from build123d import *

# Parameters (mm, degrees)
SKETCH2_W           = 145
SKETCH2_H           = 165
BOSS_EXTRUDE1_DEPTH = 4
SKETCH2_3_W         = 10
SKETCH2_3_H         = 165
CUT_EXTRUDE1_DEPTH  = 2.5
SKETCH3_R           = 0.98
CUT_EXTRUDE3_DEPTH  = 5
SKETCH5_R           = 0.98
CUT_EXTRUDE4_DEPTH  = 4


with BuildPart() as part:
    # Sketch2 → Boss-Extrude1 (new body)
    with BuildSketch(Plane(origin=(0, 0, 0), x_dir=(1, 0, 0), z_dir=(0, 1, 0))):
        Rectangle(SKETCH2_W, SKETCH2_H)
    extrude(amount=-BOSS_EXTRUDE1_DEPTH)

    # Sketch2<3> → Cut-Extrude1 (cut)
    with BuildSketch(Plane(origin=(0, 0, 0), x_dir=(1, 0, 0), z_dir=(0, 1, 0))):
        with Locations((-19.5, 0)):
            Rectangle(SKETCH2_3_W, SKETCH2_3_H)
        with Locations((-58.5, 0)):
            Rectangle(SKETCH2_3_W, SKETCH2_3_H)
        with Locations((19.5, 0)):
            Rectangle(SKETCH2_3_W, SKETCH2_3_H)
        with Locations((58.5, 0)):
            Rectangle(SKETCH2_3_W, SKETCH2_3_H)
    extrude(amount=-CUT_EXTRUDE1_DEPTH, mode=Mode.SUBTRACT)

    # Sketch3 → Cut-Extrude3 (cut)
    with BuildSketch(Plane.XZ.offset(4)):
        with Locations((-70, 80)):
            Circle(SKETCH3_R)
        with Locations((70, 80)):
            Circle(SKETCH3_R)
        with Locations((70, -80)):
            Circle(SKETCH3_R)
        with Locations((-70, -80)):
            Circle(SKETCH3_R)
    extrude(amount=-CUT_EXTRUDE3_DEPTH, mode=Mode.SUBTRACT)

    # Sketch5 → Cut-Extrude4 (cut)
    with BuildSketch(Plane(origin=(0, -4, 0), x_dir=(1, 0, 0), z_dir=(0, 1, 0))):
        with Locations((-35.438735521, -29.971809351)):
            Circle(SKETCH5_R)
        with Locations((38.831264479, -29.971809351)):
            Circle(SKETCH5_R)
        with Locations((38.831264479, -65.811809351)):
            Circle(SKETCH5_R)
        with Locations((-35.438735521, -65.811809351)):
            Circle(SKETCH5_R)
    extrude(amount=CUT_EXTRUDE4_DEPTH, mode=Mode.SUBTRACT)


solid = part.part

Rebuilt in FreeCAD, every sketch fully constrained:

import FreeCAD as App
import Part
import Sketcher
Q = App.Units.Quantity


def add_polygon(sketch, points):
    """Adds a closed chain of lines whose ends are joined by coincident constraints."""
    first, n = sketch.GeometryCount, len(points)
    for a, b in zip(points, points[1:] + points[:1]):
        sketch.addGeometry(Part.LineSegment(App.Vector(*a, 0), App.Vector(*b, 0)), False)
    for i in range(n):
        sketch.addConstraint(Sketcher.Constraint("Coincident", first + i, 2, first + (i + 1) % n, 1))

doc = App.newDocument("Part")
body = doc.addObject("PartDesign::Body", "Body")

sketch1 = body.newObject("Sketcher::SketchObject", "Sketch")
sketch1.AttachmentSupport = (doc.getObject("XZ_Plane"), [""])
sketch1.MapMode = "FlatFace"
add_polygon(sketch1, [(-72.5, -82.5), (-72.5, 82.5), (72.5, 82.5), (72.5, -82.5)])
sketch1.addConstraint(Sketcher.Constraint("Vertical", 0))
sketch1.addConstraint(Sketcher.Constraint("Horizontal", 1))
sketch1.addConstraint(Sketcher.Constraint("Vertical", 2))
sketch1.addConstraint(Sketcher.Constraint("Horizontal", 3))
sketch1.addConstraint(Sketcher.Constraint("Symmetric", 0, 2, 2, 2, -1, 1))
sketch1.addConstraint(Sketcher.Constraint("DistanceX", 1, 1, 1, 2, Q("145 mm")))
sketch1.addConstraint(Sketcher.Constraint("DistanceY", 0, 1, 0, 2, Q("165 mm")))
pad1 = body.newObject("PartDesign::Pad", "Pad")
pad1.Profile = sketch1
pad1.Length = 4

sketch2 = body.newObject("Sketcher::SketchObject", "Sketch001")
sketch2.AttachmentSupport = (doc.getObject("XZ_Plane"), [""])
sketch2.MapMode = "FlatFace"
add_polygon(sketch2, [(-24.5, -82.5), (-24.5, 82.5), (-14.5, 82.5), (-14.5, -82.5)])
add_polygon(sketch2, [(-63.5, -82.5), (-63.5, 82.5), (-53.5, 82.5), (-53.5, -82.5)])
add_polygon(sketch2, [(14.5, -82.5), (14.5, 82.5), (24.5, 82.5), (24.5, -82.5)])
add_polygon(sketch2, [(53.5, -82.5), (53.5, 82.5), (63.5, 82.5), (63.5, -82.5)])
sketch2.addConstraint(Sketcher.Constraint("Vertical", 0))
sketch2.addConstraint(Sketcher.Constraint("Horizontal", 1))
sketch2.addConstraint(Sketcher.Constraint("Vertical", 2))
sketch2.addConstraint(Sketcher.Constraint("Horizontal", 3))
sketch2.addConstraint(Sketcher.Constraint("Vertical", 4))
sketch2.addConstraint(Sketcher.Constraint("Horizontal", 5))
sketch2.addConstraint(Sketcher.Constraint("Vertical", 6))
sketch2.addConstraint(Sketcher.Constraint("Horizontal", 7))
sketch2.addConstraint(Sketcher.Constraint("Vertical", 8))
sketch2.addConstraint(Sketcher.Constraint("Horizontal", 9))
sketch2.addConstraint(Sketcher.Constraint("Vertical", 10))
sketch2.addConstraint(Sketcher.Constraint("Horizontal", 11))
sketch2.addConstraint(Sketcher.Constraint("Vertical", 12))
sketch2.addConstraint(Sketcher.Constraint("Horizontal", 13))
sketch2.addConstraint(Sketcher.Constraint("Vertical", 14))
sketch2.addConstraint(Sketcher.Constraint("Horizontal", 15))
sketch2.addConstraint(Sketcher.Constraint("Symmetric", 2, 2, 8, 2, -1, 1))
sketch2.addConstraint(Sketcher.Constraint("Symmetric", 0, 2, 10, 2, -1, 1))
sketch2.addConstraint(Sketcher.Constraint("Symmetric", 6, 2, 12, 2, -1, 1))
sketch2.addConstraint(Sketcher.Constraint("Symmetric", 4, 2, 14, 2, -1, 1))
sketch2.addConstraint(Sketcher.Constraint("Horizontal", 1, 2, 4, 2))
sketch2.addConstraint(Sketcher.Constraint("Horizontal", 3, 2, 6, 2))
sketch2.addConstraint(Sketcher.Constraint("Horizontal", 5, 2, 8, 2))
sketch2.addConstraint(Sketcher.Constraint("Equal", 3, 5))
sketch2.addConstraint(Sketcher.Constraint("DistanceX", 1, 1, 1, 2, Q("10 mm")))
sketch2.addConstraint(Sketcher.Constraint("DistanceY", 0, 1, 0, 2, Q("165 mm")))
sketch2.addConstraint(Sketcher.Constraint("DistanceX", 4, 2, 0, 2, Q("39 mm")))
sketch2.addConstraint(Sketcher.Constraint("DistanceX", 1, 2, 8, 2, Q("29 mm")))
pocket1 = body.newObject("PartDesign::Pocket", "Pocket")
pocket1.Profile = sketch2
pocket1.Length = 2.5
pocket1.Reversed = True

sketch3 = body.newObject("Sketcher::SketchObject", "Sketch002")
sketch3.AttachmentSupport = (doc.getObject("XZ_Plane"), [""])
sketch3.MapMode = "FlatFace"
sketch3.AttachmentOffset = App.Placement(App.Vector(0, 0, 4), App.Rotation())
sketch3.addGeometry(Part.Circle(App.Vector(-70, 80, 0), App.Vector(0, 0, 1), 0.98), False)
sketch3.addGeometry(Part.Circle(App.Vector(70, 80, 0), App.Vector(0, 0, 1), 0.98), False)
sketch3.addGeometry(Part.Circle(App.Vector(70, -80, 0), App.Vector(0, 0, 1), 0.98), False)
sketch3.addGeometry(Part.Circle(App.Vector(-70, -80, 0), App.Vector(0, 0, 1), 0.98), False)
sketch3.addConstraint(Sketcher.Constraint("Equal", 0, 1))
sketch3.addConstraint(Sketcher.Constraint("Equal", 1, 2))
sketch3.addConstraint(Sketcher.Constraint("Equal", 2, 3))
sketch3.addConstraint(Sketcher.Constraint("Symmetric", 0, 3, 2, 3, -1, 1))
sketch3.addConstraint(Sketcher.Constraint("Symmetric", 1, 3, 3, 3, -1, 1))
sketch3.addConstraint(Sketcher.Constraint("Symmetric", 0, 3, 1, 3, -2))
sketch3.addConstraint(Sketcher.Constraint("Diameter", 0, Q("1.96 mm")))
sketch3.addConstraint(Sketcher.Constraint("DistanceX", 0, 3, -1, 1, Q("70 mm")))
sketch3.addConstraint(Sketcher.Constraint("DistanceY", -1, 1, 0, 3, Q("80 mm")))
pocket2 = body.newObject("PartDesign::Pocket", "Pocket001")
pocket2.Profile = sketch3
pocket2.Length = 5

sketch4 = body.newObject("Sketcher::SketchObject", "Sketch003")
sketch4.AttachmentSupport = (doc.getObject("XZ_Plane"), [""])
sketch4.MapMode = "FlatFace"
sketch4.AttachmentOffset = App.Placement(App.Vector(0, 0, 4), App.Rotation())
sketch4.addGeometry(Part.Circle(App.Vector(-35.438736, 29.971809, 0), App.Vector(0, 0, 1), 0.98), False)
sketch4.addGeometry(Part.Circle(App.Vector(38.831264, 29.971809, 0), App.Vector(0, 0, 1), 0.98), False)
sketch4.addGeometry(Part.Circle(App.Vector(38.831264, 65.811809, 0), App.Vector(0, 0, 1), 0.98), False)
sketch4.addGeometry(Part.Circle(App.Vector(-35.438736, 65.811809, 0), App.Vector(0, 0, 1), 0.98), False)
sketch4.addConstraint(Sketcher.Constraint("Equal", 0, 1))
sketch4.addConstraint(Sketcher.Constraint("Equal", 1, 2))
sketch4.addConstraint(Sketcher.Constraint("Equal", 2, 3))
sketch4.addConstraint(Sketcher.Constraint("Horizontal", 0, 3, 1, 3))
sketch4.addConstraint(Sketcher.Constraint("Horizontal", 2, 3, 3, 3))
sketch4.addConstraint(Sketcher.Constraint("Vertical", 1, 3, 2, 3))
sketch4.addConstraint(Sketcher.Constraint("Vertical", 0, 3, 3, 3))
sketch4.addConstraint(Sketcher.Constraint("Diameter", 0, Q("1.96 mm")))
sketch4.addConstraint(Sketcher.Constraint("DistanceX", 0, 3, 1, 3, Q("74.27 mm")))
sketch4.addConstraint(Sketcher.Constraint("DistanceY", 1, 3, 2, 3, Q("35.84 mm")))
sketch4.addConstraint(Sketcher.Constraint("DistanceY", -1, 1, 0, 3, Q("29.971809 mm")))
sketch4.addConstraint(Sketcher.Constraint("DistanceX", 0, 3, -1, 1, Q("35.438736 mm")))
pocket3 = body.newObject("PartDesign::Pocket", "Pocket002")
pocket3.Profile = sketch4
pocket3.Length = 4

doc.recompute()
